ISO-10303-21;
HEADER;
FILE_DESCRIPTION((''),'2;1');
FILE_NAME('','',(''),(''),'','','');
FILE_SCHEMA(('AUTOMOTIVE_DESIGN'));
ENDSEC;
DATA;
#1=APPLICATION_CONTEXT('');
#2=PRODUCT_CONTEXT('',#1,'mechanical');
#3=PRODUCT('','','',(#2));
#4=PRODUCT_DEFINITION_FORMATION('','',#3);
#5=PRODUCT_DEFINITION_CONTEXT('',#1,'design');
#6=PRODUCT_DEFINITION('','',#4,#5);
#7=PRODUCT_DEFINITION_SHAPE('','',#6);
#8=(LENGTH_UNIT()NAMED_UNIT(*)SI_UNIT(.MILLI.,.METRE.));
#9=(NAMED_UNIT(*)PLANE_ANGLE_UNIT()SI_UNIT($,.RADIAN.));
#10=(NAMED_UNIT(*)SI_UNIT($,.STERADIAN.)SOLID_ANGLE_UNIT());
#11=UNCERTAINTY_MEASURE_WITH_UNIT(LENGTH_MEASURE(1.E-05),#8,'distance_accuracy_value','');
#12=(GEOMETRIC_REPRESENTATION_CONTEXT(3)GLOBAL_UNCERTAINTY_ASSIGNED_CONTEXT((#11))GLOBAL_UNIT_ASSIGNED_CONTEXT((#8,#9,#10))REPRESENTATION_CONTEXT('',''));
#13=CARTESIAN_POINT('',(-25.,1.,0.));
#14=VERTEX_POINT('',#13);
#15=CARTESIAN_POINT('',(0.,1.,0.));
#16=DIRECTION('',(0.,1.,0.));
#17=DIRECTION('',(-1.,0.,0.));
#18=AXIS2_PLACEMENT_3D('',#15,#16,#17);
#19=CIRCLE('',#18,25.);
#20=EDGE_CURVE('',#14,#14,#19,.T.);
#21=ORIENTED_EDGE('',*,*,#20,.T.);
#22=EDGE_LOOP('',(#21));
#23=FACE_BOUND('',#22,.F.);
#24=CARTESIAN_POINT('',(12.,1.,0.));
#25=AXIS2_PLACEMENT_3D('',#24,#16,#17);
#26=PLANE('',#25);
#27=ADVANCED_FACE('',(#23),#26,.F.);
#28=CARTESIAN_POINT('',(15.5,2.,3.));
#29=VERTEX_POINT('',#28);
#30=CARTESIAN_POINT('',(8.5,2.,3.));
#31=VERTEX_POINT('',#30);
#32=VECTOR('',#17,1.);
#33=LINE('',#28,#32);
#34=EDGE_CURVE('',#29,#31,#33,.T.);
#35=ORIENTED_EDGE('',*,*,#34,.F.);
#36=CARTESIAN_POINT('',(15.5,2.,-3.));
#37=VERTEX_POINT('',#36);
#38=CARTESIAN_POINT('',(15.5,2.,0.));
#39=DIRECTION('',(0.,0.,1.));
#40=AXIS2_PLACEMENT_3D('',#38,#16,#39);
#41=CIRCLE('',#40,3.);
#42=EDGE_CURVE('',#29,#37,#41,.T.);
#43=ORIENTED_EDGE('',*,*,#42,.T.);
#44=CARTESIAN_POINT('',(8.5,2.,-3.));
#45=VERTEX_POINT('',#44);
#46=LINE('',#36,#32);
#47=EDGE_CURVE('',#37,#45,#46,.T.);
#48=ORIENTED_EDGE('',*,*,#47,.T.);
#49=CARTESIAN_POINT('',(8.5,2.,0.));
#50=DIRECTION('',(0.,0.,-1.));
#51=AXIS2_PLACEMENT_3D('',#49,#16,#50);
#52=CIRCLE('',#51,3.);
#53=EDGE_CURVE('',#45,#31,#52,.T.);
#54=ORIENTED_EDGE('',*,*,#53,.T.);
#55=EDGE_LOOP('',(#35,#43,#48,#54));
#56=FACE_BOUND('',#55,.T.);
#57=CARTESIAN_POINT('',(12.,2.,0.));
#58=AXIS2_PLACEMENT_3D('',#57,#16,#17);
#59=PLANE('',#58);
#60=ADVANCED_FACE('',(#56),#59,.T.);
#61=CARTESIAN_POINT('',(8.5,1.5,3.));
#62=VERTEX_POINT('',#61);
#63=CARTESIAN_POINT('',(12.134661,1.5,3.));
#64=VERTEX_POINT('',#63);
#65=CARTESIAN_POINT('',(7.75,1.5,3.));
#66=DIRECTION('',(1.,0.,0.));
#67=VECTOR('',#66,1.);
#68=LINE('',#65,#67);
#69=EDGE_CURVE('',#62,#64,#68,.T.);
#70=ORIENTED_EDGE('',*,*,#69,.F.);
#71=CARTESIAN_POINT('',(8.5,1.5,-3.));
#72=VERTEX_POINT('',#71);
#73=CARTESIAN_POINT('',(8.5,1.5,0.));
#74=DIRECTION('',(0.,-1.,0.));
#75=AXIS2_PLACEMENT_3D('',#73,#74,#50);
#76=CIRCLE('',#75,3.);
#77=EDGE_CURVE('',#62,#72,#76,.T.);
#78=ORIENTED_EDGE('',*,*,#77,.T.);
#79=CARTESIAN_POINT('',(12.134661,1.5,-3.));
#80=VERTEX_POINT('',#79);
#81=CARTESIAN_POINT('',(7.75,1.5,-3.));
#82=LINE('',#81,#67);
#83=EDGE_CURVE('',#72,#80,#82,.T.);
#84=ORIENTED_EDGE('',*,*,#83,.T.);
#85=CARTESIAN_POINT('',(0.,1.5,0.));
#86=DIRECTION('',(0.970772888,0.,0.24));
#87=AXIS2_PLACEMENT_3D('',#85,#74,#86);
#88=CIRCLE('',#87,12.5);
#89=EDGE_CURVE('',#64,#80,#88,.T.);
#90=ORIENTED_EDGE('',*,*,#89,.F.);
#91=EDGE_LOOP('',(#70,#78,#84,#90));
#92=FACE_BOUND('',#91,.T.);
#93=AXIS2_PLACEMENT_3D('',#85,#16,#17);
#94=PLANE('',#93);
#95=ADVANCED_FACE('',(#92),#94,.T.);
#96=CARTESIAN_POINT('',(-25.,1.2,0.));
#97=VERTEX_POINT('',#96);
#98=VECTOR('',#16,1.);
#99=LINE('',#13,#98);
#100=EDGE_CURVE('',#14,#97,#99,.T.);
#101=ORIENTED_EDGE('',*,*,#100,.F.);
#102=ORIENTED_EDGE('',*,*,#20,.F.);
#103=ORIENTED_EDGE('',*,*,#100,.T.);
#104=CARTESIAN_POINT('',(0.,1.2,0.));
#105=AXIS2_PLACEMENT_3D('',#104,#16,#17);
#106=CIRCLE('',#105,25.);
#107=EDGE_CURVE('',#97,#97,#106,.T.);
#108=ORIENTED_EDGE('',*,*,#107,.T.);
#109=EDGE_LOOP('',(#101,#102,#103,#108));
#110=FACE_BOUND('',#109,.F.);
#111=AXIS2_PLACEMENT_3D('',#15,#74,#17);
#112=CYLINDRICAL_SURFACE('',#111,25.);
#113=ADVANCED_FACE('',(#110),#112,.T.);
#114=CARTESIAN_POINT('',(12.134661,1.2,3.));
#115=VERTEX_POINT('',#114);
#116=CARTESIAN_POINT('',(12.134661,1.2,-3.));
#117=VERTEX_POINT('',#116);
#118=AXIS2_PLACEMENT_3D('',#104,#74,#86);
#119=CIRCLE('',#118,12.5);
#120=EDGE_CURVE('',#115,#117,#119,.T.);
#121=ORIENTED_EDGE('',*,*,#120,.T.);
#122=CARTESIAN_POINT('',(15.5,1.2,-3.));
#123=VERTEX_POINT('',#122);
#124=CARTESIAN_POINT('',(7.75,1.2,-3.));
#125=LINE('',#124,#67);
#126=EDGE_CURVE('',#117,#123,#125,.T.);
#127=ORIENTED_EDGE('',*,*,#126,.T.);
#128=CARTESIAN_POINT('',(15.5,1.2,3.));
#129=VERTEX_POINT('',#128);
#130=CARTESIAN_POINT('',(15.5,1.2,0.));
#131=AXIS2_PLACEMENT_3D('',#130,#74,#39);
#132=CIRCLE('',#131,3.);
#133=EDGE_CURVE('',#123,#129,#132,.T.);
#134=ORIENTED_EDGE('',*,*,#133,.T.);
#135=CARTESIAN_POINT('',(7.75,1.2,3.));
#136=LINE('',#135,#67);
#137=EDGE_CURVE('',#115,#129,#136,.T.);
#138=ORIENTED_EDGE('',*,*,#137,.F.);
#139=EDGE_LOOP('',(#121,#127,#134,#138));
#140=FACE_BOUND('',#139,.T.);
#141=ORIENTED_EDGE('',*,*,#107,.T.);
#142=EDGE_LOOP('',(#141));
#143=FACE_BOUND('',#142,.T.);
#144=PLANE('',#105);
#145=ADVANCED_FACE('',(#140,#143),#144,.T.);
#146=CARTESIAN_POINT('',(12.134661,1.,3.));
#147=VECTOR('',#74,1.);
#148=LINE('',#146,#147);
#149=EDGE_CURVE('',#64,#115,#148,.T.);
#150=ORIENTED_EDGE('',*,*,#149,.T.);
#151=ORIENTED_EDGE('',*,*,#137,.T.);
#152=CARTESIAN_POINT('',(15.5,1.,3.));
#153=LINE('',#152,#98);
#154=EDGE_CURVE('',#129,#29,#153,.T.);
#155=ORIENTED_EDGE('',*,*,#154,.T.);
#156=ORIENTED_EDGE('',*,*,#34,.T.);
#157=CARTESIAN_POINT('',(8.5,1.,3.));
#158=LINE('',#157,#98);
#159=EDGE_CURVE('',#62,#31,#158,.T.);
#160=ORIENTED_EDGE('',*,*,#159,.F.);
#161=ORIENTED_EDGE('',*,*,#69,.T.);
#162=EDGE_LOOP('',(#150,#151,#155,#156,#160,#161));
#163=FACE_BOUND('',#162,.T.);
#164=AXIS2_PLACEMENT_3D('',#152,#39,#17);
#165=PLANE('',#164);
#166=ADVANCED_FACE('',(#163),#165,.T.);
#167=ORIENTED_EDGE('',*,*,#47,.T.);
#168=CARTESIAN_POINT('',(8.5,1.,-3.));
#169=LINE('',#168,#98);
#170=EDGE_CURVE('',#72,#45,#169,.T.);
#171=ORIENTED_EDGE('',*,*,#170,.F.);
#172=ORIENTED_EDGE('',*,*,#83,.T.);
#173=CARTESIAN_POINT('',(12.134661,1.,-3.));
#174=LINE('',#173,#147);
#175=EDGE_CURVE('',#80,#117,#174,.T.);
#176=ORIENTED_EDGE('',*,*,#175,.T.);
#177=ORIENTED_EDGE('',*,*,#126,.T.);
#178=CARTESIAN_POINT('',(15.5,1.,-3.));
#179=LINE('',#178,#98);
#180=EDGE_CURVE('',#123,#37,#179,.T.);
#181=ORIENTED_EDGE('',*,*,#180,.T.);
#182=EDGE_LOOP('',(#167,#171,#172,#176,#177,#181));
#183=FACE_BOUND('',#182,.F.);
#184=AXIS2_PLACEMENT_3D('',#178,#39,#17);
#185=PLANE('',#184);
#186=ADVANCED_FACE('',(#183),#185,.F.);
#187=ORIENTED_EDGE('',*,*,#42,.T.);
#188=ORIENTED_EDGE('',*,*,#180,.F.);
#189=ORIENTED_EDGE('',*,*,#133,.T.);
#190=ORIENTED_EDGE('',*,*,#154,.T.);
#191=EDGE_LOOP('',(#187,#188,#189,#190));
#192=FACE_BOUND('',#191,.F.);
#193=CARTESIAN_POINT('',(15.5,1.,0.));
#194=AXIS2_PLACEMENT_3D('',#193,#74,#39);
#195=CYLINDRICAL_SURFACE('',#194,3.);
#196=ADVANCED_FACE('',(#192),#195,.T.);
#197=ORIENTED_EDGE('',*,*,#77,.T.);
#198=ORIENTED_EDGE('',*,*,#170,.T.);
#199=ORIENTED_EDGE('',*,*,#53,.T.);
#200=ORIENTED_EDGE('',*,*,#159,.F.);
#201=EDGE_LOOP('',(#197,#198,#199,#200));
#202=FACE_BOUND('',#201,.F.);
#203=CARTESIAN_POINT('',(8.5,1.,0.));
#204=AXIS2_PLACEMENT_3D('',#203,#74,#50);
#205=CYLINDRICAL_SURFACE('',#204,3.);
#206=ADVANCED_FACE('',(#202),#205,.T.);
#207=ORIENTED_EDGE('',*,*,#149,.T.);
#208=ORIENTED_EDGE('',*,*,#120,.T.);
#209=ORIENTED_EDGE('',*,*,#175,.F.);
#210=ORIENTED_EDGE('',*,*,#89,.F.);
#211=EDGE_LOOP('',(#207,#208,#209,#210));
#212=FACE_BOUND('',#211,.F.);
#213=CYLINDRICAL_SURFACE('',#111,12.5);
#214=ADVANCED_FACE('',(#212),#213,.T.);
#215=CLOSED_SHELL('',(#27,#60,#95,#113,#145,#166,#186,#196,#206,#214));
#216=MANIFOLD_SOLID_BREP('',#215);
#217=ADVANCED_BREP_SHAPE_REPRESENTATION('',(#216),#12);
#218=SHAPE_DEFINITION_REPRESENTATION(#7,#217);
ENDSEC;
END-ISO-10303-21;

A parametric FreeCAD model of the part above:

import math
import FreeCAD as App
import Part
import Sketcher
Q = App.Units.Quantity

doc = App.newDocument("Part")
body = doc.addObject("PartDesign::Body", "Body")

# Sketch on XZ plane
sketch1 = body.newObject("Sketcher::SketchObject", "Sketch")
sketch1.AttachmentSupport = (doc.getObject("XZ_Plane"), [""])
sketch1.MapMode = "FlatFace"
sketch1.addGeometry(Part.Circle(App.Vector(0, 0, 0), App.Vector(0, 0, 1), 25), False)
sketch1.addConstraint([
    Sketcher.Constraint("Coincident", 0, 3, -1, 1),
    Sketcher.Constraint("Diameter", 0, Q("50 mm")),
])
pad1 = body.newObject("PartDesign::Pad", "Pad")
pad1.Profile = sketch1
pad1.Length = 0.2

# Sketch on XZ plane
sketch2 = body.newObject("Sketcher::SketchObject", "Sketch001")
sketch2.AttachmentSupport = (doc.getObject("XZ_Plane"), [""])
sketch2.MapMode = "FlatFace"
sketch2.addGeometry(Part.Circle(App.Vector(0, 0, 0), App.Vector(0, 0, 1), 12), False)
sketch2.addConstraint([
    Sketcher.Constraint("Coincident", 0, 3, -1, 1),
    Sketcher.Constraint("Diameter", 0, Q("25 mm")),
])
pad2 = body.newObject("PartDesign::Pad", "Pad001")
pad2.Profile = sketch2
pad2.Length = 0.5

# Sketch on XZ plane
sketch3 = body.newObject("Sketcher::SketchObject", "Sketch002")
sketch3.AttachmentSupport = (doc.getObject("XZ_Plane"), [""])
sketch3.MapMode = "FlatFace"
sketch3.addGeometry([
    Part.ArcOfCircle(Part.Circle(App.Vector(-15.5, 0, 0), App.Vector(0, 0, 1), 3), math.radians(90), math.radians(270)),
    Part.LineSegment(App.Vector(-15.5, -3, 0), App.Vector(-8.5, -3, 0)),
    Part.ArcOfCircle(Part.Circle(App.Vector(-8.5, 0, 0), App.Vector(0, 0, 1), 3), math.radians(-90), math.radians(90)),
    Part.LineSegment(App.Vector(-8.5, 3, 0), App.Vector(-15.5, 3, 0)),
], False)
sketch3.addConstraint([
    Sketcher.Constraint("Tangent", 0, 2, 1, 1),
    Sketcher.Constraint("Tangent", 1, 2, 2, 1),
    Sketcher.Constraint("Tangent", 2, 2, 3, 1),
    Sketcher.Constraint("Tangent", 3, 2, 0, 1),
    Sketcher.Constraint("Horizontal", 1),
    Sketcher.Constraint("Horizontal", 3),
    Sketcher.Constraint("PointOnObject", 0, 3, -1),
    Sketcher.Constraint("Radius", 0, Q("3 mm")),
    Sketcher.Constraint("DistanceX", 1, 1, 1, 2, Q("7 mm")),
    Sketcher.Constraint("DistanceX", 0, 3, -1, 1, Q("15.5 mm")),
])
pad3 = body.newObject("PartDesign::Pad", "Pad002")
pad3.Profile = sketch3
pad3.Length = 1
body2 = doc.addObject("PartDesign::Body", "Body001")
doc.recompute()

body.Placement = App.Placement(App.Vector(0, 1, 0), App.Rotation(App.Vector(0, 0, 1), 180))
boolean = body2.newObject("PartDesign::Boolean", "Boolean")
boolean.Type = "Fuse"
boolean.addObjects([body])

doc.recompute()
